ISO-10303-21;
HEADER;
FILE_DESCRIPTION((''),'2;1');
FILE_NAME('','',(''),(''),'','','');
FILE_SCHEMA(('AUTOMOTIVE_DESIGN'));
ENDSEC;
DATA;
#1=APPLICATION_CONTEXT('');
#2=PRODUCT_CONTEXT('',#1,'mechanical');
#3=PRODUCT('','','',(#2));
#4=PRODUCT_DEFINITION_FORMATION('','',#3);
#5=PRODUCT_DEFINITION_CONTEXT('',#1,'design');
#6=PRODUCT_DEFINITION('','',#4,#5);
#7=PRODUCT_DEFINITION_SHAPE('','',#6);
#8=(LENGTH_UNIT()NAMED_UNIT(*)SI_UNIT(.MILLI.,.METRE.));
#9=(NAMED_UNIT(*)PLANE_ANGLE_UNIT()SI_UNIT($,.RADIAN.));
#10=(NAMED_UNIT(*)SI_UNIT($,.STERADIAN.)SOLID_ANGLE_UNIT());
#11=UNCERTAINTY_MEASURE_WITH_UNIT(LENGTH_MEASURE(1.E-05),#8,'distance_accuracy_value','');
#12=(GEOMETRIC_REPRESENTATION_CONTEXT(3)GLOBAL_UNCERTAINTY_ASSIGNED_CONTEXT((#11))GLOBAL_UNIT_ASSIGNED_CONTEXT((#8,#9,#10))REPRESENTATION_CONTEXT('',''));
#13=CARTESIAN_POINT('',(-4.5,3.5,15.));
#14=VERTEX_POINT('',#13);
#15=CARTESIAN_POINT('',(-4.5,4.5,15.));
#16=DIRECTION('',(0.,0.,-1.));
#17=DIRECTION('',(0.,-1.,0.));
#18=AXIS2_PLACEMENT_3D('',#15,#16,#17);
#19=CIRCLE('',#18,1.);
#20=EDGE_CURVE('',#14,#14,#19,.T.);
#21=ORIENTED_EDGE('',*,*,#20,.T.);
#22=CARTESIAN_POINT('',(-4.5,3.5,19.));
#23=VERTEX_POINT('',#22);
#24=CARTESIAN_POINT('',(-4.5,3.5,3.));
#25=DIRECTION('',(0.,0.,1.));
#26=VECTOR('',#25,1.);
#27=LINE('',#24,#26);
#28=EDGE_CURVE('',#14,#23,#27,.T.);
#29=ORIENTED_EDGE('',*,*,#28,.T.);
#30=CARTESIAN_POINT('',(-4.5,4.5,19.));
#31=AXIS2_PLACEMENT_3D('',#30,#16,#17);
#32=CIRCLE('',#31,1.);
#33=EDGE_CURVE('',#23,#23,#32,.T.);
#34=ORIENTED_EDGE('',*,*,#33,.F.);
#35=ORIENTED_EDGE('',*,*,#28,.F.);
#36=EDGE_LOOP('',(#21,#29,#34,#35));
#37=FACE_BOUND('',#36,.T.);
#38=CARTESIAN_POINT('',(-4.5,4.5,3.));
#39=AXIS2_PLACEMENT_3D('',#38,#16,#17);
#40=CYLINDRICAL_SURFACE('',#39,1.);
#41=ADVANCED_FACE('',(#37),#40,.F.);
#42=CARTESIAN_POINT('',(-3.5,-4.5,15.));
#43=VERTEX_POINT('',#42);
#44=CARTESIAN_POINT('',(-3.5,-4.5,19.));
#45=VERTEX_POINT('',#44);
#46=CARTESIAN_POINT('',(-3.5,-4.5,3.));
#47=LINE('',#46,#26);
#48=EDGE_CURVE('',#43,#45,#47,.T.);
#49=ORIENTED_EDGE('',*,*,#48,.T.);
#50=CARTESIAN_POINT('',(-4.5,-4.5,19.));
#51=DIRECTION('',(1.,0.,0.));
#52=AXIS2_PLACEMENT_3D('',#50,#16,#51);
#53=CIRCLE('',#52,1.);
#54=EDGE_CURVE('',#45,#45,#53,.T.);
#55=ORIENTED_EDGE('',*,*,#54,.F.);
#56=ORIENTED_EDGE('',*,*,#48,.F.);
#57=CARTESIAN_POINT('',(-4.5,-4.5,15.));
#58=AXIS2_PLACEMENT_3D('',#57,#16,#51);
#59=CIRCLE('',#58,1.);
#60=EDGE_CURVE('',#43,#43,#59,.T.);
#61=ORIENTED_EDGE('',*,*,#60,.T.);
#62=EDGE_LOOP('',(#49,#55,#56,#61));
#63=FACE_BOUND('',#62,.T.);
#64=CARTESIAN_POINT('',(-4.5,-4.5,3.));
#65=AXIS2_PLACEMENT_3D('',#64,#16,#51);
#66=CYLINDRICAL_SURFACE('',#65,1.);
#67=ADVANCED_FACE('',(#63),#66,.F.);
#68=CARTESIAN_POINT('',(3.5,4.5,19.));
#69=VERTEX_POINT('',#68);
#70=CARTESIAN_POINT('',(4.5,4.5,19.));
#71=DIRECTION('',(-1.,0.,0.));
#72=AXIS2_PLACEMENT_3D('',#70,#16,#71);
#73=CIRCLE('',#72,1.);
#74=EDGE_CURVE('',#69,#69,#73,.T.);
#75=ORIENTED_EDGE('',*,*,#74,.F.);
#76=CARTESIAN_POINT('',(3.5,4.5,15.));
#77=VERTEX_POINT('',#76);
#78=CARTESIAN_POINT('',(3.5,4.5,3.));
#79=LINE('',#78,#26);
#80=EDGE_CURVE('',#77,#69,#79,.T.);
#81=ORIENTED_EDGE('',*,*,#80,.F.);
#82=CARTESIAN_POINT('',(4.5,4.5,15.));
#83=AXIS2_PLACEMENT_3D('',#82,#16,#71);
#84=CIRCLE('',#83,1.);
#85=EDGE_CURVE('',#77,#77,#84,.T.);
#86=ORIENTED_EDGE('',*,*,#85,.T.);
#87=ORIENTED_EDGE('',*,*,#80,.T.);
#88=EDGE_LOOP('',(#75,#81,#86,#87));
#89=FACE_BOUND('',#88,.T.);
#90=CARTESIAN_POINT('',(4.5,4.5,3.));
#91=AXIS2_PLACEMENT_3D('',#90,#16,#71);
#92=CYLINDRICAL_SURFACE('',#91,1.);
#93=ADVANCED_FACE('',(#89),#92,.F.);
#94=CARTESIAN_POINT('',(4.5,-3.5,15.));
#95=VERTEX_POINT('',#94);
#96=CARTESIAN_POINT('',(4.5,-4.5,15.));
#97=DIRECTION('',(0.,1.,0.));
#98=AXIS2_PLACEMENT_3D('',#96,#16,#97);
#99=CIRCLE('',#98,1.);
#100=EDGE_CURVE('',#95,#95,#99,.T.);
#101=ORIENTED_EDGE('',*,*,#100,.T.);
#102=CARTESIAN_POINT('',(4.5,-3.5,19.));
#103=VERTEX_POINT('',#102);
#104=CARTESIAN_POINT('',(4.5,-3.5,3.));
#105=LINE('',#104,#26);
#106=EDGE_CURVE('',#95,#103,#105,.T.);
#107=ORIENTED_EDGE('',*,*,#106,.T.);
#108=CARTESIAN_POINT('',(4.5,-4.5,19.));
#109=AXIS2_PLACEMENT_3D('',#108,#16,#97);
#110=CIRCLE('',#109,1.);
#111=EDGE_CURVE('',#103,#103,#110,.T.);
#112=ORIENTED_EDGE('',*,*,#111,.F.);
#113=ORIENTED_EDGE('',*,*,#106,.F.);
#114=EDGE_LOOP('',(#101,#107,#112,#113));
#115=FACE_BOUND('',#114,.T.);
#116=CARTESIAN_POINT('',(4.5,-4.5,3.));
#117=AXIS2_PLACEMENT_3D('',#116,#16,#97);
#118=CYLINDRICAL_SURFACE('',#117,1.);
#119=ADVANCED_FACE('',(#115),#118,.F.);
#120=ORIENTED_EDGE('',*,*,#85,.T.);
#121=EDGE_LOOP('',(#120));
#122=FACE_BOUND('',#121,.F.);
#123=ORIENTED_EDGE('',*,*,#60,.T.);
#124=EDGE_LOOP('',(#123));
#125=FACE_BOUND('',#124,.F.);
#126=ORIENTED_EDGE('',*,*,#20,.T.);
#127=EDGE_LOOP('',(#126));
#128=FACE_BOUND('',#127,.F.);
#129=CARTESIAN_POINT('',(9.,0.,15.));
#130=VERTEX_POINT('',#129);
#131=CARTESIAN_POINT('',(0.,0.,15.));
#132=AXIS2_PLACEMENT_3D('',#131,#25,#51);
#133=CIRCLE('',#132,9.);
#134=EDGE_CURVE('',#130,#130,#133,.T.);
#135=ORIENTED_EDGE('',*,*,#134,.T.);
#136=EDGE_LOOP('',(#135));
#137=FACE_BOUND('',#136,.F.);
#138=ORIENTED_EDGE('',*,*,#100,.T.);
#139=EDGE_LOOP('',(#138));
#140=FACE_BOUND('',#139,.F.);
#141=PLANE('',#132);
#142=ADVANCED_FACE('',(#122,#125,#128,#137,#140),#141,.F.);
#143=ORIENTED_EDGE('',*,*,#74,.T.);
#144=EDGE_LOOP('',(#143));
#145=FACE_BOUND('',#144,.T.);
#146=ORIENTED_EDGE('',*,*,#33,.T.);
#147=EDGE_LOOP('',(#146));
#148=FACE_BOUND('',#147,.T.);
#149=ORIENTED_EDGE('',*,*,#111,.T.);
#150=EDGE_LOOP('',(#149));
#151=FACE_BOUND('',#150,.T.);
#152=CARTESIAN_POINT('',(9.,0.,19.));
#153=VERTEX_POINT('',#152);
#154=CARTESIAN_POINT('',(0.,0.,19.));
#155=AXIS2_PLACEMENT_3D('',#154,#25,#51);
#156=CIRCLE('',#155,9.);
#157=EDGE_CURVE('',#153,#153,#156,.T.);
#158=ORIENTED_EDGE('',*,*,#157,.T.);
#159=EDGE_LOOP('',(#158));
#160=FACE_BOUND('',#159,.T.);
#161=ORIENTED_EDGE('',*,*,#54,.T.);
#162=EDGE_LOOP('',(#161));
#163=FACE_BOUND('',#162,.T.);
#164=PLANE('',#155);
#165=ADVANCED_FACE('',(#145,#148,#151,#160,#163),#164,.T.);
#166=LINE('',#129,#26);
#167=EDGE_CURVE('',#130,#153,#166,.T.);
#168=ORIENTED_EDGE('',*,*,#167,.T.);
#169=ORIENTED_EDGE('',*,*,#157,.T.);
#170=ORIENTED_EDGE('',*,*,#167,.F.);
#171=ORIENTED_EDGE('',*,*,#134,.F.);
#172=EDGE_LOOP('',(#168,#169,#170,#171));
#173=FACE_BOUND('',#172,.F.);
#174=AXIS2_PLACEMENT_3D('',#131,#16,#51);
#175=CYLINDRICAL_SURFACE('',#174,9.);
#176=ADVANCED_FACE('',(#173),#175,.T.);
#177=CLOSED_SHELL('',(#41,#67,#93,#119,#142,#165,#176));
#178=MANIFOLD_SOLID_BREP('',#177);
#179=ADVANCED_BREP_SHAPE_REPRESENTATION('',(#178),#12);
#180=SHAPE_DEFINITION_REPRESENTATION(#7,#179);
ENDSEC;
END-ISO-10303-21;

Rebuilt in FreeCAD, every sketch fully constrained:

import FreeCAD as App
import Part
import Sketcher

V = App.Vector
Q = App.Units.Quantity

doc = App.newDocument("Part")
body = doc.addObject("PartDesign::Body", "Body")

sketch1 = doc.addObject("Sketcher::SketchObject", "Sketch")
body.addObject(sketch1)
sketch1.AttachmentSupport = (doc.XY_Plane, [""])
sketch1.MapMode = "FlatFace"
sketch1.AttachmentOffset = App.Placement(V(0, 0, -88), App.Rotation())
sketch1.addGeometry(Part.Circle(V(4.5, -4.5, 0), V(0, 0, 1), 1), False)
sketch1.addConstraint(Sketcher.Constraint("Diameter", 0, Q("2 mm")))
sketch1.addConstraint(Sketcher.Constraint("DistanceX", -1, 1, 0, 3, Q("4.5 mm")))
sketch1.addConstraint(Sketcher.Constraint("DistanceY", 0, 3, -1, 1, Q("4.5 mm")))
pad1 = doc.addObject("PartDesign::Pad", "Pad")
body.addObject(pad1)
pad1.Profile = sketch1
pad1.Length = 20
body2 = doc.addObject("PartDesign::Body", "Body001")

sketch2 = doc.addObject("Sketcher::SketchObject", "Sketch001")
body2.addObject(sketch2)
sketch2.AttachmentSupport = (doc.getObject("XY_Plane001"), [""])
sketch2.MapMode = "FlatFace"
sketch2.AttachmentOffset = App.Placement(V(0, 0, -88), App.Rotation())
sketch2.addGeometry(Part.Circle(V(4.5, 4.5, 0), V(0, 0, 1), 1), False)
sketch2.addConstraint(Sketcher.Constraint("Diameter", 0, Q("2 mm")))
sketch2.addConstraint(Sketcher.Constraint("DistanceX", -1, 1, 0, 3, Q("4.5 mm")))
sketch2.addConstraint(Sketcher.Constraint("DistanceY", -1, 1, 0, 3, Q("4.5 mm")))
pad2 = doc.addObject("PartDesign::Pad", "Pad001")
body2.addObject(pad2)
pad2.Profile = sketch2
pad2.Length = 20
body3 = doc.addObject("PartDesign::Body", "Body002")

sketch3 = doc.addObject("Sketcher::SketchObject", "Sketch002")
body3.addObject(sketch3)
sketch3.AttachmentSupport = (doc.getObject("XY_Plane002"), [""])
sketch3.MapMode = "FlatFace"
sketch3.AttachmentOffset = App.Placement(V(0, 0, -88), App.Rotation())
sketch3.addGeometry(Part.Circle(V(-4.5, 4.5, 0), V(0, 0, 1), 1), False)
sketch3.addConstraint(Sketcher.Constraint("Diameter", 0, Q("2 mm")))
sketch3.addConstraint(Sketcher.Constraint("DistanceX", 0, 3, -1, 1, Q("4.5 mm")))
sketch3.addConstraint(Sketcher.Constraint("DistanceY", -1, 1, 0, 3, Q("4.5 mm")))
pad3 = doc.addObject("PartDesign::Pad", "Pad002")
body3.addObject(pad3)
pad3.Profile = sketch3
pad3.Length = 20
body4 = doc.addObject("PartDesign::Body", "Body003")
body4.AllowCompound = True

sketch4 = doc.addObject("Sketcher::SketchObject", "Sketch003")
body4.addObject(sketch4)
sketch4.AttachmentSupport = (doc.getObject("XY_Plane003"), [""])
sketch4.MapMode = "FlatFace"
sketch4.AttachmentOffset = App.Placement(V(0, 0, -88), App.Rotation())
sketch4.addGeometry(Part.Circle(V(-4.5, -4.5, 0), V(0, 0, 1), 1), False)
sketch4.addConstraint(Sketcher.Constraint("Diameter", 0, Q("2 mm")))
sketch4.addConstraint(Sketcher.Constraint("DistanceX", 0, 3, -1, 1, Q("4.5 mm")))
sketch4.addConstraint(Sketcher.Constraint("DistanceY", 0, 3, -1, 1, Q("4.5 mm")))
pad4 = doc.addObject("PartDesign::Pad", "Pad003")
body4.addObject(pad4)
pad4.Profile = sketch4
pad4.Length = 20
doc.recompute()

boolean = doc.addObject("PartDesign::Boolean", "Boolean")
body4.addObject(boolean)
boolean.Type = "Fuse"
boolean.addObjects([body])
doc.recompute()

boolean2 = doc.addObject("PartDesign::Boolean", "Boolean001")
body4.addObject(boolean2)
boolean2.Type = "Fuse"
boolean2.addObjects([body2])
doc.recompute()

boolean3 = doc.addObject("PartDesign::Boolean", "Boolean002")
body4.addObject(boolean3)
boolean3.Type = "Fuse"
boolean3.addObjects([body3])
body5 = doc.addObject("PartDesign::Body", "Body004")
body5.AllowCompound = True
doc.recompute()

body4.Placement = App.Placement(V(0, 0, 91), App.Rotation(V(0, 0, 1), 0))
boolean4 = doc.addObject("PartDesign::Boolean", "Boolean003")
body5.addObject(boolean4)
boolean4.Type = "Fuse"
boolean4.addObjects([body4])
body6 = doc.addObject("PartDesign::Body", "Body005")

sketch5 = doc.addObject("Sketcher::SketchObject", "Sketch004")
body6.addObject(sketch5)
sketch5.AttachmentSupport = (doc.getObject("XY_Plane005"), [""])
sketch5.MapMode = "FlatFace"
sketch5.AttachmentOffset = App.Placement(V(0, 0, 15), App.Rotation())
sketch5.addGeometry(Part.Circle(V(0, 0, 0), V(0, 0, 1), 9), False)
sketch5.addConstraint(Sketcher.Constraint("Coincident", 0, 3, -1, 1))
sketch5.addConstraint(Sketcher.Constraint("Diameter", 0, Q("18 mm")))
pad5 = doc.addObject("PartDesign::Pad", "Pad004")
body6.addObject(pad5)
pad5.Profile = sketch5
pad5.Length = 4
doc.recompute()

boolean5 = doc.addObject("PartDesign::Boolean", "Boolean004")
body6.addObject(boolean5)
boolean5.Type = "Cut"
boolean5.addObjects([body5])

doc.recompute()
